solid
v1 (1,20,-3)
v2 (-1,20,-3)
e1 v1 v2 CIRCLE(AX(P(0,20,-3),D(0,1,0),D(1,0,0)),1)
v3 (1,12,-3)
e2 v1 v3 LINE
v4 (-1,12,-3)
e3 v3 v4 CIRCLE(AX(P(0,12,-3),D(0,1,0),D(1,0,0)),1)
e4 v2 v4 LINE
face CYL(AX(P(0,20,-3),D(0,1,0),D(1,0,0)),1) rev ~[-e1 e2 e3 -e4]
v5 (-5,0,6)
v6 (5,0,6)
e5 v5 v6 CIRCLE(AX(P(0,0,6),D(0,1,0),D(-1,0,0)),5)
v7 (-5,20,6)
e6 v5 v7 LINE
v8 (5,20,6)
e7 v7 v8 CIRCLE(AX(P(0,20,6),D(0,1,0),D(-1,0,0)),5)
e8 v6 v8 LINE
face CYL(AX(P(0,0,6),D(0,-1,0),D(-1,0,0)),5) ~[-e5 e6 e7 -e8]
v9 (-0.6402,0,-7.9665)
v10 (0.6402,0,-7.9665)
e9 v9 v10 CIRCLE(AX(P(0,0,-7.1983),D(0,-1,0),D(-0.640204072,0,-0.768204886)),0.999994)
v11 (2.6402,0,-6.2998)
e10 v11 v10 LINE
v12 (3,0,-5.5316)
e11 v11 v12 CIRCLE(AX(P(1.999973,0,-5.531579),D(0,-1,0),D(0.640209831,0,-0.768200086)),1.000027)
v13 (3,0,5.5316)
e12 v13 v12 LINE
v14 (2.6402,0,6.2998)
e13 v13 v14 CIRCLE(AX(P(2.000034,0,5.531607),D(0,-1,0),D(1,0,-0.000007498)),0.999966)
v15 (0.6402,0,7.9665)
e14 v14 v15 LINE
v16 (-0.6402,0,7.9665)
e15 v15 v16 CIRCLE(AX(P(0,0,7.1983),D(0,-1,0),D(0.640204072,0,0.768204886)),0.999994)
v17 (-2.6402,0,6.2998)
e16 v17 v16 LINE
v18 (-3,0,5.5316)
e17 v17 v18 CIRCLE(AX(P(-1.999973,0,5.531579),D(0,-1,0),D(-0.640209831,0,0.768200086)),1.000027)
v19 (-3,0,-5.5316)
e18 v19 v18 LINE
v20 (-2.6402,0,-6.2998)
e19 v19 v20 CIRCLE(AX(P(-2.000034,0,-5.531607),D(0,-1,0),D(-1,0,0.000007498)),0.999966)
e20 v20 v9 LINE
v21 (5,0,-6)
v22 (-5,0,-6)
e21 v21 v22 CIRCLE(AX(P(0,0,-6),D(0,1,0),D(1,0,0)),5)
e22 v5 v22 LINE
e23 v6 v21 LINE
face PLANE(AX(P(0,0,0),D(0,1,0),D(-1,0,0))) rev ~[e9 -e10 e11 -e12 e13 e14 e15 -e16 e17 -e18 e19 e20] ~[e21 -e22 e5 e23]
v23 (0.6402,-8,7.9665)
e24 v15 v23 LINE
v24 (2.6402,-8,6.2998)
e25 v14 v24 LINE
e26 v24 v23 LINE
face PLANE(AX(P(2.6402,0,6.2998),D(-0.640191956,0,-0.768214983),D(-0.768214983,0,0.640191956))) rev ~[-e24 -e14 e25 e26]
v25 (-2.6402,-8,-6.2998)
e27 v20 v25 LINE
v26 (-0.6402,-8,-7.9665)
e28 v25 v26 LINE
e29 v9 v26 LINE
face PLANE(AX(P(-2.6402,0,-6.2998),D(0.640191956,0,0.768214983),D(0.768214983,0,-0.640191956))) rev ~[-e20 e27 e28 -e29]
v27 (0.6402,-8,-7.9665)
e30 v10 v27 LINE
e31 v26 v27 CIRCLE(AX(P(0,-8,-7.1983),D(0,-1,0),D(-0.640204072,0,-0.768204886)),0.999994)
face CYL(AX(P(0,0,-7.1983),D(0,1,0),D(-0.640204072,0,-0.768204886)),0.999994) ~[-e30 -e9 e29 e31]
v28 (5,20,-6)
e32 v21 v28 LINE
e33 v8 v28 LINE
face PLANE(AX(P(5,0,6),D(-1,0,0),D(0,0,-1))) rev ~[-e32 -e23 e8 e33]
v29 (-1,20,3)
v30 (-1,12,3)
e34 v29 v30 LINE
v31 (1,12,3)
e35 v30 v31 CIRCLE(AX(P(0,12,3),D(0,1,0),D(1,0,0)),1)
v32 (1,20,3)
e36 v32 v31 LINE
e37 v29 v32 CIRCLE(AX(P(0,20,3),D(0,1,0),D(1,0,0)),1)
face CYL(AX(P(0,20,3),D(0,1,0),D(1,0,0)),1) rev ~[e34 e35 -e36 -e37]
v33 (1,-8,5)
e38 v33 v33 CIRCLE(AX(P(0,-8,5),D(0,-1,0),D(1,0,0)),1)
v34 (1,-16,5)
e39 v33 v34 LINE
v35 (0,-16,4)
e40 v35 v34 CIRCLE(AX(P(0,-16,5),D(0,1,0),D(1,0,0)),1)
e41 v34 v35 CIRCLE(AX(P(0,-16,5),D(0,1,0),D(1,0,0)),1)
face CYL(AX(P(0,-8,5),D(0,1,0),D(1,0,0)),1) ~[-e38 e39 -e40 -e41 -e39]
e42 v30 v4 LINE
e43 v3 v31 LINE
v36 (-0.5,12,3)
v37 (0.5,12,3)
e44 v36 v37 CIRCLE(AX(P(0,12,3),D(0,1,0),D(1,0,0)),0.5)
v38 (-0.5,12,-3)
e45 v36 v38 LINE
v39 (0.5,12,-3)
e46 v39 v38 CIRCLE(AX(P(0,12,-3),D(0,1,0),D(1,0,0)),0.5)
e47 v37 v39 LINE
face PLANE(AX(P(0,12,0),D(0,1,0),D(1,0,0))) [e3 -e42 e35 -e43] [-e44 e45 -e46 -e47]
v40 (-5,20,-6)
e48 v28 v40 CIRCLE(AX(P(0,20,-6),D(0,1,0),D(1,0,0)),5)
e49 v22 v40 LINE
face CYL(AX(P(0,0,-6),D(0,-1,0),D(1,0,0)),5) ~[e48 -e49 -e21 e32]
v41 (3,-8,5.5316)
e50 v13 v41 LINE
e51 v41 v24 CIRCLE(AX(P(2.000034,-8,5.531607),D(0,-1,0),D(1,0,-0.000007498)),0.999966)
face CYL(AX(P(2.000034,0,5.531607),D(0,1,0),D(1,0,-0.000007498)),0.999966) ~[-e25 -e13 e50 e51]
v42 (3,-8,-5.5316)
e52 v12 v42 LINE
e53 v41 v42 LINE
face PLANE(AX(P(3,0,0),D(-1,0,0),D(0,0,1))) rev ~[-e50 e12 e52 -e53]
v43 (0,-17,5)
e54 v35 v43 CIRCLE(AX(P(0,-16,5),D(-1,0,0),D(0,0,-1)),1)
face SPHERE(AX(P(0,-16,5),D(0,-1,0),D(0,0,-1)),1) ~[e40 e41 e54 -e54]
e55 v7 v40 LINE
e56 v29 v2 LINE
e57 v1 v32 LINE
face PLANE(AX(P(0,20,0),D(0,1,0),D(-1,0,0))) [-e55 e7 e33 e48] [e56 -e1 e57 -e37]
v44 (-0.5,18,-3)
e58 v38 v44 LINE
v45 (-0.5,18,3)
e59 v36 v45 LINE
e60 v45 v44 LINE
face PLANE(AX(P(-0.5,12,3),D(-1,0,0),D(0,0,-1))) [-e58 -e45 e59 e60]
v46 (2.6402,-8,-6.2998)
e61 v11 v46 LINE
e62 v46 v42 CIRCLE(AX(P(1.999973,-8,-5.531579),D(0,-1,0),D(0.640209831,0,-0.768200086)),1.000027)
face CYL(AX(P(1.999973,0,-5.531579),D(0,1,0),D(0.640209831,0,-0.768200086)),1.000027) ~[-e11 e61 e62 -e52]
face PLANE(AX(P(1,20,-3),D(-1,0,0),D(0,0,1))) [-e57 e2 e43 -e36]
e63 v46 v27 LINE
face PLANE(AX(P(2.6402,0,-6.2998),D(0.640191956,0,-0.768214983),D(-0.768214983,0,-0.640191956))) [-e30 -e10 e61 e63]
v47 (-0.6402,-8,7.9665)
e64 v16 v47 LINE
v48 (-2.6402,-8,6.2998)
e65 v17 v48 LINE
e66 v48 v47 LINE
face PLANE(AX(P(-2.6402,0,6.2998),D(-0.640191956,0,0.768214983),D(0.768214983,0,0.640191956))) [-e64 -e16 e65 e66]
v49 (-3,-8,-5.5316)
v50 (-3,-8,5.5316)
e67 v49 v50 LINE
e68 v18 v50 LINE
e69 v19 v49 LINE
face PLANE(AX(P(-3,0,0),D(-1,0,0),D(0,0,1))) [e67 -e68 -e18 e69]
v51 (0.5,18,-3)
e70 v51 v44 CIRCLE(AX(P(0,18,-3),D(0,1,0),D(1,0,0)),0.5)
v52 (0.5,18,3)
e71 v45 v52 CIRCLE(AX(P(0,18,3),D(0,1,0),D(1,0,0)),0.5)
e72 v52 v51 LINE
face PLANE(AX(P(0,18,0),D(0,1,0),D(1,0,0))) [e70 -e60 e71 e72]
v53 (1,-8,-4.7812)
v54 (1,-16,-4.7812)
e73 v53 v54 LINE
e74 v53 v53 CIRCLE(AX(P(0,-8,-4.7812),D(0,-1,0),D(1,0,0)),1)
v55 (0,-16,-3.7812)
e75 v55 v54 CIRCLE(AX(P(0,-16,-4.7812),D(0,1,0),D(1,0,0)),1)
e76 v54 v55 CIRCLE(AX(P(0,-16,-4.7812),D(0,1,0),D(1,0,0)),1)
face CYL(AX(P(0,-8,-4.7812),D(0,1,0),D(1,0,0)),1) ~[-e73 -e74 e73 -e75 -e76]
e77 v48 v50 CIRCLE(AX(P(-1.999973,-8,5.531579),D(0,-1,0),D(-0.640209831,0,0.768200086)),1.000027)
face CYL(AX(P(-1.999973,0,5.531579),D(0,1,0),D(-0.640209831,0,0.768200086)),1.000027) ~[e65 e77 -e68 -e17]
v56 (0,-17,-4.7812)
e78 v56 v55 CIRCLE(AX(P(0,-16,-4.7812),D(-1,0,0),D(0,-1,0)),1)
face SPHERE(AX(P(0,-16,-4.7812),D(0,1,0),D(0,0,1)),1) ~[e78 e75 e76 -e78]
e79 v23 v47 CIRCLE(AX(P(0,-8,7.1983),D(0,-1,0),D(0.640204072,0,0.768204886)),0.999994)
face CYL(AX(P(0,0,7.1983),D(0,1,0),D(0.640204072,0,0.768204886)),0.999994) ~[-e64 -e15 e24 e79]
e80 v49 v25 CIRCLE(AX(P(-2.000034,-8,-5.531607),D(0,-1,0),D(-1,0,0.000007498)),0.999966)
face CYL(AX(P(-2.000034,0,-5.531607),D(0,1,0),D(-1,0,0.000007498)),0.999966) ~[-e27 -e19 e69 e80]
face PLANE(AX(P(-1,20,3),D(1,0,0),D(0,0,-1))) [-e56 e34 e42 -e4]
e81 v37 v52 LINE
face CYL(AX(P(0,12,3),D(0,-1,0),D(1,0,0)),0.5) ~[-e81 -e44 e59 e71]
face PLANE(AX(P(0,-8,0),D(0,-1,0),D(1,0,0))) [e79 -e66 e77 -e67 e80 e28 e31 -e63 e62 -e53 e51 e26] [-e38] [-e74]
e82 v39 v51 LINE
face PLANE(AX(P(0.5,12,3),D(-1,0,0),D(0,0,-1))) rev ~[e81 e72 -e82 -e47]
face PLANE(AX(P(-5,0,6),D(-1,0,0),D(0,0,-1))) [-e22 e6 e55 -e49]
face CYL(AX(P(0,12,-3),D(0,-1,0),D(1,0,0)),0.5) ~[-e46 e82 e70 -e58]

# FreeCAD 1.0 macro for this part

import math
import FreeCAD as App
import Part
import Sketcher

V = App.Vector
Q = App.Units.Quantity

doc = App.newDocument("Part")
params = doc.addObject("Spreadsheet::Sheet", "Params")
for row, (alias, value) in enumerate([
    ("sketch1_radius", "5 mm"),
    ("sketch1_height", "12 mm"),
    ("pad1_length", "20 mm"),
    ("sketch2_radius", "1 mm"),
    ("sketch2_height", "6 mm"),
    ("pocket1_length", "8 mm"),
    ("sketch3_radius", "1 mm"),
    ("pad2_length", "8 mm"),
    ("sketch4_diameter", "2 mm"),
    ("pad3_length", "8 mm"),
    ("sketch5_radius", "1 mm"),
    ("revolution_angle", "360 deg"),
    ("sketch6_radius", "1 mm"),
    ("revolution2_angle", "360 deg"),
    ("sketch7_radius", "0.5 mm"),
    ("sketch7_height", "6 mm"),
    ("pad4_length", "6 mm"),
], start=1):
    params.set(f"A{row}", alias)
    params.set(f"B{row}", "=" + value)
    params.setAlias(f"B{row}", alias)

body = doc.addObject("PartDesign::Body", "Body")

# Sketch on XZ plane
sketch1 = body.newObject("Sketcher::SketchObject", "Sketch")
sketch1.AttachmentSupport = (doc.getObject("XZ_Plane"), [""])
sketch1.MapMode = "FlatFace"
sketch1.addGeometry([
    Part.LineSegment(V(-5, -6, 0), V(-5, 6, 0)),
    Part.ArcOfCircle(Part.Circle(V(0, 6, 0), V(0, 0, 1), 5), math.radians(0), math.radians(180)),
    Part.LineSegment(V(5, 6, 0), V(5, -6, 0)),
    Part.ArcOfCircle(Part.Circle(V(0, -6, 0), V(0, 0, 1), 5), math.radians(180), math.radians(360)),
], False)
sketch1.addConstraint([
    Sketcher.Constraint("Tangent", 0, 2, 1, 2),
    Sketcher.Constraint("Tangent", 1, 1, 2, 1),
    Sketcher.Constraint("Tangent", 2, 2, 3, 2),
    Sketcher.Constraint("Tangent", 3, 1, 0, 1),
    Sketcher.Constraint("Vertical", 0),
    Sketcher.Constraint("Vertical", 2),
    Sketcher.Constraint("Symmetric", 1, 3, 3, 3, -1, 1),
    Sketcher.Constraint("Radius", 1, Q("5 mm")),
    Sketcher.Constraint("DistanceY", 0, 1, 0, 2, Q("12 mm")),
])
sketch1.setExpression("Constraints[7]", "Params.sketch1_radius")
sketch1.setExpression("Constraints[8]", "Params.sketch1_height")
pad1 = body.newObject("PartDesign::Pad", "Pad")
pad1.Profile = sketch1
pad1.setExpression("Length", "Params.pad1_length")
pad1.Reversed = True

# Sketch on XZ plane
sketch2 = body.newObject("Sketcher::SketchObject", "Sketch001")
sketch2.AttachmentSupport = (doc.getObject("XZ_Plane"), [""])
sketch2.MapMode = "FlatFace"
sketch2.AttachmentOffset = App.Placement(V(0, 0, -20), App.Rotation())
sketch2.addGeometry([
    Part.LineSegment(V(-1, -3, 0), V(-1, 3, 0)),
    Part.ArcOfCircle(Part.Circle(V(0, 3, 0), V(0, 0, 1), 1), math.radians(0), math.radians(180)),
    Part.LineSegment(V(1, 3, 0), V(1, -3, 0)),
    Part.ArcOfCircle(Part.Circle(V(0, -3, 0), V(0, 0, 1), 1), math.radians(180), math.radians(360)),
], False)
sketch2.addConstraint([
    Sketcher.Constraint("Tangent", 0, 2, 1, 2),
    Sketcher.Constraint("Tangent", 1, 1, 2, 1),
    Sketcher.Constraint("Tangent", 2, 2, 3, 2),
    Sketcher.Constraint("Tangent", 3, 1, 0, 1),
    Sketcher.Constraint("Vertical", 0),
    Sketcher.Constraint("Vertical", 2),
    Sketcher.Constraint("Symmetric", 1, 3, 3, 3, -1, 1),
    Sketcher.Constraint("Radius", 1, Q("1 mm")),
    Sketcher.Constraint("DistanceY", 0, 1, 0, 2, Q("6 mm")),
])
sketch2.setExpression("Constraints[7]", "Params.sketch2_radius")
sketch2.setExpression("Constraints[8]", "Params.sketch2_height")
pocket1 = body.newObject("PartDesign::Pocket", "Pocket")
pocket1.Profile = sketch2
pocket1.setExpression("Length", "Params.pocket1_length")
pocket1.Reversed = True

# Sketch on XZ plane
sketch3 = body.newObject("Sketcher::SketchObject", "Sketch002")
sketch3.AttachmentSupport = (doc.getObject("XZ_Plane"), [""])
sketch3.MapMode = "FlatFace"
sketch3.addGeometry([
    Part.LineSegment(V(-3, 5.5, 0), V(-3, -5.5, 0)),  # 0
    Part.ArcOfCircle(Part.Circle(V(-2, -5.5, 0), V(0, 0, 1), 1), math.radians(180), math.radians(230)),  # 1
    Part.LineSegment(V(-2.6, -6.3, 0), V(-0.6, -8, 0)),  # 2
    Part.ArcOfCircle(Part.Circle(V(0, -7.2, 0), V(0, 0, 1), 1), math.radians(-130), math.radians(-50)),  # 3
    Part.LineSegment(V(0.6, -8, 0), V(2.6, -6.3, 0)),  # 4
    Part.ArcOfCircle(Part.Circle(V(2, -5.5, 0), V(0, 0, 1), 1), math.radians(-50), math.radians(0)),  # 5
    Part.LineSegment(V(3, -5.5, 0), V(3, 5.5, 0)),  # 6
    Part.ArcOfCircle(Part.Circle(V(2, 5.5, 0), V(0, 0, 1), 1), math.radians(0), math.radians(50)),  # 7
    Part.LineSegment(V(2.6, 6.3, 0), V(0.6, 8, 0)),  # 8
    Part.ArcOfCircle(Part.Circle(V(0, 7.2, 0), V(0, 0, 1), 1), math.radians(50), math.radians(130)),  # 9
    Part.LineSegment(V(-0.6, 8, 0), V(-2.6, 6.3, 0)),  # 10
    Part.ArcOfCircle(Part.Circle(V(-2, 5.5, 0), V(0, 0, 1), 1), math.radians(130), math.radians(180)),  # 11
], False)
sketch3.addConstraint([
    Sketcher.Constraint("Tangent", 0, 2, 1, 1),
    Sketcher.Constraint("Tangent", 1, 2, 2, 1),
    Sketcher.Constraint("Tangent", 2, 2, 3, 1),
    Sketcher.Constraint("Tangent", 3, 2, 4, 1),
    Sketcher.Constraint("Tangent", 4, 2, 5, 1),
    Sketcher.Constraint("Tangent", 5, 2, 6, 1),
    Sketcher.Constraint("Tangent", 6, 2, 7, 1),
    Sketcher.Constraint("Tangent", 7, 2, 8, 1),
    Sketcher.Constraint("Tangent", 8, 2, 9, 1),
    Sketcher.Constraint("Tangent", 9, 2, 10, 1),
    Sketcher.Constraint("Tangent", 10, 2, 11, 1),
    Sketcher.Constraint("Tangent", 11, 2, 0, 1),
    Sketcher.Constraint("Vertical", 0),
    Sketcher.Constraint("Vertical", 6),
    Sketcher.Constraint("Equal", 1, 3),
    Sketcher.Constraint("Equal", 3, 5),
    Sketcher.Constraint("Equal", 5, 7),
    Sketcher.Constraint("Equal", 7, 9),
    Sketcher.Constraint("Equal", 9, 11),
    Sketcher.Constraint("Symmetric", 1, 3, 7, 3, -1, 1),
    Sketcher.Constraint("Symmetric", 3, 3, 9, 3, -1, 1),
    Sketcher.Constraint("Symmetric", 2, 2, 3, 2, -2),
    Sketcher.Constraint("Parallel", 4, 10),
    Sketcher.Constraint("Radius", 1, Q("1 mm")),
    Sketcher.Constraint("DistanceX", 1, 3, -1, 1, Q("2 mm")),
    Sketcher.Constraint("DistanceY", 3, 3, 7, 3, Q("12.73 mm")),
    Sketcher.Constraint("DistanceY", 0, 2, 0, 1, Q("11.0632 mm")),
])
sketch3.setExpression("Constraints[23]", "Params.sketch3_radius")
pad2 = body.newObject("PartDesign::Pad", "Pad001")
pad2.Profile = sketch3
pad2.setExpression("Length", "Params.pad2_length")

# Sketch on XZ plane
sketch4 = body.newObject("Sketcher::SketchObject", "Sketch003")
sketch4.AttachmentSupport = (doc.getObject("XZ_Plane"), [""])
sketch4.MapMode = "FlatFace"
sketch4.AttachmentOffset = App.Placement(V(0, 0, 8), App.Rotation())
sketch4.addGeometry([
    Part.Circle(V(0, 5, 0), V(0, 0, 1), 1),
    Part.Circle(V(0, -4.8, 0), V(0, 0, 1), 1),
], False)
sketch4.addConstraint([
    Sketcher.Constraint("Equal", 0, 1),
    Sketcher.Constraint("PointOnObject", 0, 3, -2),
    Sketcher.Constraint("PointOnObject", 1, 3, -2),
    Sketcher.Constraint("Diameter", 0, Q("2 mm")),
    Sketcher.Constraint("DistanceY", -1, 1, 0, 3, Q("5 mm")),
    Sketcher.Constraint("DistanceY", 1, 3, -1, 1, Q("4.7812 mm")),
])
sketch4.setExpression("Constraints[3]", "Params.sketch4_diameter")
pad3 = body.newObject("PartDesign::Pad", "Pad002")
pad3.Profile = sketch4
pad3.setExpression("Length", "Params.pad3_length")

# Sketch on YZ plane
sketch5 = body.newObject("Sketcher::SketchObject", "Sketch004")
sketch5.AttachmentSupport = (doc.getObject("YZ_Plane"), [""])
sketch5.MapMode = "FlatFace"
sketch5.addGeometry([
    Part.LineSegment(V(-16, 5, 0), V(-16, 4, 0)),
    Part.ArcOfCircle(Part.Circle(V(-16, 5, 0), V(0, 0, 1), 1), math.radians(180), math.radians(270)),
    Part.LineSegment(V(-17, 5, 0), V(-16, 5, 0)),
], False)
sketch5.addGeometry(Part.LineSegment(V(-17, 5, 0), V(-16, 5, 0)), True)  # axis
sketch5.addConstraint([
    Sketcher.Constraint("Coincident", 0, 2, 1, 2),
    Sketcher.Constraint("Coincident", 1, 1, 2, 1),
    Sketcher.Constraint("Coincident", 2, 2, 0, 1),
    Sketcher.Constraint("Vertical", 0),
    Sketcher.Constraint("Horizontal", 2),
    Sketcher.Constraint("Horizontal", 3),
    Sketcher.Constraint("Coincident", 2, 2, 1, 3),
    Sketcher.Constraint("Coincident", 3, 1, 1, 1),
    Sketcher.Constraint("Vertical", 0, 2, 3, 2),
    Sketcher.Constraint("Radius", 1, Q("1 mm")),
    Sketcher.Constraint("DistanceX", 1, 3, -1, 1, Q("16 mm")),
    Sketcher.Constraint("DistanceY", -1, 1, 1, 3, Q("5 mm")),
])
sketch5.setExpression("Constraints[9]", "Params.sketch5_radius")
revolution = body.newObject("PartDesign::Revolution", "Revolution")
revolution.Profile = sketch5
revolution.ReferenceAxis = (sketch5, ["Axis0"])
revolution.setExpression("Angle", "Params.revolution_angle")

# Sketch on YZ plane
sketch6 = body.newObject("Sketcher::SketchObject", "Sketch005")
sketch6.AttachmentSupport = (doc.getObject("YZ_Plane"), [""])
sketch6.MapMode = "FlatFace"
sketch6.addGeometry([
    Part.LineSegment(V(-16, -3.8, 0), V(-16, -4.8, 0)),
    Part.LineSegment(V(-16, -4.8, 0), V(-17, -4.8, 0)),
    Part.ArcOfCircle(Part.Circle(V(-16, -4.8, 0), V(0, 0, 1), 1), math.radians(90), math.radians(180)),
], False)
sketch6.addGeometry(Part.LineSegment(V(-16, -4.8, 0), V(-17, -4.8, 0)), True)  # axis
sketch6.addConstraint([
    Sketcher.Constraint("Coincident", 0, 2, 1, 1),
    Sketcher.Constraint("Coincident", 1, 2, 2, 2),
    Sketcher.Constraint("Coincident", 2, 1, 0, 1),
    Sketcher.Constraint("Vertical", 0),
    Sketcher.Constraint("Horizontal", 1),
    Sketcher.Constraint("Horizontal", 3),
    Sketcher.Constraint("Coincident", 0, 2, 2, 3),
    Sketcher.Constraint("Coincident", 3, 1, 2, 3),
    Sketcher.Constraint("Equal", 1, 3),
    Sketcher.Constraint("Radius", 2, Q("1 mm")),
    Sketcher.Constraint("DistanceX", 2, 3, -1, 1, Q("16 mm")),
    Sketcher.Constraint("DistanceY", 2, 3, -1, 1, Q("4.7812 mm")),
])
sketch6.setExpression("Constraints[9]", "Params.sketch6_radius")
revolution2 = body.newObject("PartDesign::Revolution", "Revolution001")
revolution2.Profile = sketch6
revolution2.ReferenceAxis = (sketch6, ["Axis0"])
revolution2.setExpression("Angle", "Params.revolution2_angle")

# Sketch on XZ plane
sketch7 = body.newObject("Sketcher::SketchObject", "Sketch006")
sketch7.AttachmentSupport = (doc.getObject("XZ_Plane"), [""])
sketch7.MapMode = "FlatFace"
sketch7.AttachmentOffset = App.Placement(V(0, 0, -12), App.Rotation())
sketch7.addGeometry([
    Part.LineSegment(V(-0.5, -3, 0), V(-0.5, 3, 0)),
    Part.ArcOfCircle(Part.Circle(V(0, 3, 0), V(0, 0, 1), 0.5), math.radians(0), math.radians(180)),
    Part.LineSegment(V(0.5, 3, 0), V(0.5, -3, 0)),
    Part.ArcOfCircle(Part.Circle(V(0, -3, 0), V(0, 0, 1), 0.5), math.radians(180), math.radians(360)),
], False)
sketch7.addConstraint([
    Sketcher.Constraint("Tangent", 0, 2, 1, 2),
    Sketcher.Constraint("Tangent", 1, 1, 2, 1),
    Sketcher.Constraint("Tangent", 2, 2, 3, 2),
    Sketcher.Constraint("Tangent", 3, 1, 0, 1),
    Sketcher.Constraint("Vertical", 0),
    Sketcher.Constraint("Vertical", 2),
    Sketcher.Constraint("Symmetric", 1, 3, 3, 3, -1, 1),
    Sketcher.Constraint("Radius", 1, Q("0.5 mm")),
    Sketcher.Constraint("DistanceY", 0, 1, 0, 2, Q("6 mm")),
])
sketch7.setExpression("Constraints[7]", "Params.sketch7_radius")
sketch7.setExpression("Constraints[8]", "Params.sketch7_height")
pad4 = body.newObject("PartDesign::Pad", "Pad003")
pad4.Profile = sketch7
pad4.setExpression("Length", "Params.pad4_length")
pad4.Reversed = True

doc.recompute()
